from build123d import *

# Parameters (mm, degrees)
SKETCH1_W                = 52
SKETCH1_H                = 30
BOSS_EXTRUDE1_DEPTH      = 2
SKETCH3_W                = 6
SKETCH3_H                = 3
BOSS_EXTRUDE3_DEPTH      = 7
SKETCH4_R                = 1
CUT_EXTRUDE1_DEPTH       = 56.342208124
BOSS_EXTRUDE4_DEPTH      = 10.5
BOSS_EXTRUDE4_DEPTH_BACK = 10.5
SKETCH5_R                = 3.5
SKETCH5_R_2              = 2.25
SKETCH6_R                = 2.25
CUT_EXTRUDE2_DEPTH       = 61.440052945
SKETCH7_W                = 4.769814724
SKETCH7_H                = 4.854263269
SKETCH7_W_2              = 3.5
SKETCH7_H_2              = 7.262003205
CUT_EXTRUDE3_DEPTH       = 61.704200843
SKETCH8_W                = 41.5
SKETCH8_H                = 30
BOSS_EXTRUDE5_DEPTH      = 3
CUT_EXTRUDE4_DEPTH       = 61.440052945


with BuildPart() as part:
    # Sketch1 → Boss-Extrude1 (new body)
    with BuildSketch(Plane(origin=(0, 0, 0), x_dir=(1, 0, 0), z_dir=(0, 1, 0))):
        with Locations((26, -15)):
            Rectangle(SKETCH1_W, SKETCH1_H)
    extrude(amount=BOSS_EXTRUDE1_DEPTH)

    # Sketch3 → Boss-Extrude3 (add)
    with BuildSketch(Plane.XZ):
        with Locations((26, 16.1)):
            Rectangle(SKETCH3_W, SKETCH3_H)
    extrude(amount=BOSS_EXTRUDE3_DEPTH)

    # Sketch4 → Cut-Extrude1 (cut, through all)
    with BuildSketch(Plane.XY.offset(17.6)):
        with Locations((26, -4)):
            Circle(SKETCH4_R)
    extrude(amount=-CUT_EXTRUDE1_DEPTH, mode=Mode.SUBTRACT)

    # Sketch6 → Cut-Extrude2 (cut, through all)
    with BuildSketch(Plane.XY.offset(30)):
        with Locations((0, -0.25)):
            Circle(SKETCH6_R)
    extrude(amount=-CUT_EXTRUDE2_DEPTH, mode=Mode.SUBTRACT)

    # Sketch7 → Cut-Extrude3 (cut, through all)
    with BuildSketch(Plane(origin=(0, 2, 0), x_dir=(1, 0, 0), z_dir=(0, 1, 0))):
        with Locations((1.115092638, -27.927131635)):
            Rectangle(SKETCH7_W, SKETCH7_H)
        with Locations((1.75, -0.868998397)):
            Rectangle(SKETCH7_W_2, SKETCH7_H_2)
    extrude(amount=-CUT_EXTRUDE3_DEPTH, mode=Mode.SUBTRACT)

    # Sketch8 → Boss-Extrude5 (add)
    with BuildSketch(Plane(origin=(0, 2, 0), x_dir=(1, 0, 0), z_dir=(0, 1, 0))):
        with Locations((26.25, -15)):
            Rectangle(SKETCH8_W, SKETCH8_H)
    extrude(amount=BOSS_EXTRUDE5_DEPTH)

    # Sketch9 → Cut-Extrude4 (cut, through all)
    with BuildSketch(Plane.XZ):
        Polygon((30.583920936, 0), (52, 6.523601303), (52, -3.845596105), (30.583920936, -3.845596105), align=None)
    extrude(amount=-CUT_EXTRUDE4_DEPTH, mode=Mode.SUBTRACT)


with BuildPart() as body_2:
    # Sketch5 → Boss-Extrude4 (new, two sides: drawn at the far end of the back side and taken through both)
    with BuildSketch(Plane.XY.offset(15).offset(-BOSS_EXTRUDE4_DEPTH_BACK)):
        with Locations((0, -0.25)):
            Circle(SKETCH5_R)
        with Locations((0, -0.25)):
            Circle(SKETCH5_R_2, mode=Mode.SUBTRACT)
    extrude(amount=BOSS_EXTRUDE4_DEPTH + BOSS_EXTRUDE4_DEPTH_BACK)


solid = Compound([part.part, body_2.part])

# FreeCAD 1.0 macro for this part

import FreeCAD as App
import Part
import Sketcher
from FreeCAD import Vector
Q = App.Units.Quantity


def add_polygon(sketch, points):
    """Adds a closed chain of lines whose ends are joined by coincident constraints."""
    first, n = sketch.GeometryCount, len(points)
    for a, b in zip(points, points[1:] + points[:1]):
        sketch.addGeometry(Part.LineSegment(App.Vector(*a, 0), App.Vector(*b, 0)), False)
    for i in range(n):
        sketch.addConstraint(Sketcher.Constraint("Coincident", first + i, 2, first + (i + 1) % n, 1))

doc = App.newDocument("Part")
body = doc.addObject("PartDesign::Body", "Body")

# Sketch on XZ plane
sketch1 = body.newObject("Sketcher::SketchObject", "Sketch")
sketch1.AttachmentSupport = (doc.getObject("XZ_Plane"), [""])
sketch1.MapMode = "FlatFace"
add_polygon(sketch1, [(0, 0), (0, 30), (52, 30), (52, 0)])  # lines 0-3
sketch1.addConstraint([
    Sketcher.Constraint("Vertical", 0),
    Sketcher.Constraint("Horizontal", 1),
    Sketcher.Constraint("Vertical", 2),
    Sketcher.Constraint("Horizontal", 3),
    Sketcher.Constraint("Coincident", 3, 2, -1, 1),
    Sketcher.Constraint("DistanceX", 1, 1, 1, 2, Q("52 mm")),
    Sketcher.Constraint("DistanceY", 0, 1, 0, 2, Q("30 mm")),
])
pad1 = body.newObject("PartDesign::Pad", "Pad")
pad1.Profile = sketch1
pad1.Length = 2
pad1.Reversed = True

# Sketch on XZ plane
sketch2 = body.newObject("Sketcher::SketchObject", "Sketch001")
sketch2.AttachmentSupport = (doc.getObject("XZ_Plane"), [""])
sketch2.MapMode = "FlatFace"
add_polygon(sketch2, [(23, 17.6), (23, 14.6), (29, 14.6), (29, 17.6)])  # lines 0-3
sketch2.addConstraint([
    Sketcher.Constraint("Vertical", 0),
    Sketcher.Constraint("Horizontal", 1),
    Sketcher.Constraint("Vertical", 2),
    Sketcher.Constraint("Horizontal", 3),
    Sketcher.Constraint("DistanceX", 1, 1, 1, 2, Q("6 mm")),
    Sketcher.Constraint("DistanceY", 0, 2, 0, 1, Q("3 mm")),
    Sketcher.Constraint("DistanceX", -1, 1, 0, 2, Q("23 mm")),
    Sketcher.Constraint("DistanceY", -1, 1, 0, 2, Q("14.6 mm")),
])
pad2 = body.newObject("PartDesign::Pad", "Pad001")
pad2.Profile = sketch2
pad2.Length = 7

# Sketch on XY plane
sketch3 = body.newObject("Sketcher::SketchObject", "Sketch002")
sketch3.AttachmentSupport = (doc.getObject("XY_Plane"), [""])
sketch3.MapMode = "FlatFace"
sketch3.AttachmentOffset = App.Placement(Vector(0, 0, 17.6), App.Rotation())
sketch3.addGeometry(Part.Circle(Vector(26, -4, 0), Vector(0, 0, 1), 1), False)
sketch3.addConstraint([
    Sketcher.Constraint("Diameter", 0, Q("2 mm")),
    Sketcher.Constraint("DistanceX", -1, 1, 0, 3, Q("26 mm")),
    Sketcher.Constraint("DistanceY", 0, 3, -1, 1, Q("4 mm")),
])
pocket1 = body.newObject("PartDesign::Pocket", "Pocket")
pocket1.Profile = sketch3
pocket1.Type = "ThroughAll"

# Sketch on XY plane
sketch4 = body.newObject("Sketcher::SketchObject", "Sketch003")
sketch4.AttachmentSupport = (doc.getObject("XY_Plane"), [""])
sketch4.MapMode = "FlatFace"
sketch4.AttachmentOffset = App.Placement(Vector(0, 0, 30), App.Rotation())
sketch4.addGeometry(Part.Circle(Vector(0, -0.25, 0), Vector(0, 0, 1), 2.25), False)
sketch4.addConstraint([
    Sketcher.Constraint("PointOnObject", 0, 3, -2),
    Sketcher.Constraint("Diameter", 0, Q("4.5 mm")),
    Sketcher.Constraint("DistanceY", 0, 3, -1, 1, Q("0.25 mm")),
])
pocket2 = body.newObject("PartDesign::Pocket", "Pocket001")
pocket2.Profile = sketch4
pocket2.Type = "ThroughAll"

# Sketch on XZ plane
sketch5 = body.newObject("Sketcher::SketchObject", "Sketch004")
sketch5.AttachmentSupport = (doc.getObject("XZ_Plane"), [""])
sketch5.MapMode = "FlatFace"
sketch5.AttachmentOffset = App.Placement(Vector(0, 0, -2), App.Rotation())
add_polygon(sketch5, [(-1.269815, 25.5), (-1.269815, 30.354263), (3.5, 30.354263), (3.5, 25.5)])  # lines 0-3
add_polygon(sketch5, [(0, -2.762003), (0, 4.5), (3.5, 4.5), (3.5, -2.762003)])  # lines 4-7
sketch5.addConstraint([
    Sketcher.Constraint("Vertical", 0),
    Sketcher.Constraint("Horizontal", 1),
    Sketcher.Constraint("Vertical", 2),
    Sketcher.Constraint("Horizontal", 3),
    Sketcher.Constraint("Vertical", 4),
    Sketcher.Constraint("Horizontal", 5),
    Sketcher.Constraint("Vertical", 6),
    Sketcher.Constraint("Horizontal", 7),
    Sketcher.Constraint("PointOnObject", 4, 2, -2),
    Sketcher.Constraint("Vertical", 2, 2, 5, 2),
    Sketcher.Constraint("DistanceX", 5, 1, 5, 2, Q("3.5 mm")),
    Sketcher.Constraint("DistanceY", 4, 2, 3, 2, Q("21 mm")),
    Sketcher.Constraint("DistanceY", -1, 1, 2, 2, Q("25.5 mm")),
    Sketcher.Constraint("DistanceX", 1, 1, 1, 2, Q("4.769815 mm")),
    Sketcher.Constraint("DistanceY", 0, 1, 0, 2, Q("4.854263 mm")),
    Sketcher.Constraint("DistanceY", 4, 1, 4, 2, Q("7.262003 mm")),
])
pocket3 = body.newObject("PartDesign::Pocket", "Pocket002")
pocket3.Profile = sketch5
pocket3.Type = "ThroughAll"
pocket3.Reversed = True

# Sketch on XZ plane
sketch6 = body.newObject("Sketcher::SketchObject", "Sketch005")
sketch6.AttachmentSupport = (doc.getObject("XZ_Plane"), [""])
sketch6.MapMode = "FlatFace"
sketch6.AttachmentOffset = App.Placement(Vector(0, 0, -2), App.Rotation())
add_polygon(sketch6, [(5.5, 0), (5.5, 30), (47, 30), (47, 0)])  # lines 0-3
sketch6.addConstraint([
    Sketcher.Constraint("Vertical", 0),
    Sketcher.Constraint("Horizontal", 1),
    Sketcher.Constraint("Vertical", 2),
    Sketcher.Constraint("Horizontal", 3),
    Sketcher.Constraint("PointOnObject", 2, 2, -1),
    Sketcher.Constraint("DistanceY", 0, 1, 0, 2, Q("30 mm")),
    Sketcher.Constraint("DistanceX", 1, 1, 1, 2, Q("41.5 mm")),
    Sketcher.Constraint("DistanceX", -1, 1, 1, 2, Q("47 mm")),
])
pad3 = body.newObject("PartDesign::Pad", "Pad002")
pad3.Profile = sketch6
pad3.Length = 3
pad3.Reversed = True

# Sketch on XZ plane
sketch7 = body.newObject("Sketcher::SketchObject", "Sketch006")
sketch7.AttachmentSupport = (doc.getObject("XZ_Plane"), [""])
sketch7.MapMode = "FlatFace"
add_polygon(sketch7, [(52, 6.523601), (30.583921, 0), (30.583921, -3.845596), (52, -3.845596)])  # lines 0-3
sketch7.addConstraint([
    Sketcher.Constraint("Vertical", 1),
    Sketcher.Constraint("Horizontal", 2),
    Sketcher.Constraint("Vertical", 3),
    Sketcher.Constraint("PointOnObject", 0, 2, -1),
    Sketcher.Constraint("DistanceX", -1, 1, 2, 2, Q("52 mm")),
    Sketcher.Constraint("DistanceX", 2, 1, 2, 2, Q("21.416079 mm")),
    Sketcher.Constraint("DistanceY", -1, 1, 3, 2, Q("6.523601 mm")),
    Sketcher.Constraint("DistanceY", 1, 2, 1, 1, Q("3.845596 mm")),
])
pocket4 = body.newObject("PartDesign::Pocket", "Pocket003")
pocket4.Profile = sketch7
pocket4.Type = "ThroughAll"
body2 = doc.addObject("PartDesign::Body", "Body001")

# Sketch on XY plane
sketch8 = body2.newObject("Sketcher::SketchObject", "Sketch007")
sketch8.AttachmentSupport = (doc.getObject("XY_Plane001"), [""])
sketch8.MapMode = "FlatFace"
sketch8.AttachmentOffset = App.Placement(Vector(0, 0, 15), App.Rotation())
sketch8.addGeometry([
    Part.Circle(Vector(0, -0.25, 0), Vector(0, 0, 1), 3.5),
    Part.Circle(Vector(0, -0.25, 0), Vector(0, 0, 1), 2.25),
], False)
sketch8.addConstraint([
    Sketcher.Constraint("Coincident", 1, 3, 0, 3),
    Sketcher.Constraint("PointOnObject", 0, 3, -2),
    Sketcher.Constraint("Diameter", 0, Q("7 mm")),
    Sketcher.Constraint("Diameter", 1, Q("4.5 mm")),
    Sketcher.Constraint("DistanceY", 0, 3, -1, 1, Q("0.25 mm")),
])
pad4 = body2.newObject("PartDesign::Pad", "Pad003")
pad4.Profile = sketch8
pad4.Type = "TwoLengths"
pad4.Length = 10.5
pad4.Length2 = 10.5

doc.recompute()
